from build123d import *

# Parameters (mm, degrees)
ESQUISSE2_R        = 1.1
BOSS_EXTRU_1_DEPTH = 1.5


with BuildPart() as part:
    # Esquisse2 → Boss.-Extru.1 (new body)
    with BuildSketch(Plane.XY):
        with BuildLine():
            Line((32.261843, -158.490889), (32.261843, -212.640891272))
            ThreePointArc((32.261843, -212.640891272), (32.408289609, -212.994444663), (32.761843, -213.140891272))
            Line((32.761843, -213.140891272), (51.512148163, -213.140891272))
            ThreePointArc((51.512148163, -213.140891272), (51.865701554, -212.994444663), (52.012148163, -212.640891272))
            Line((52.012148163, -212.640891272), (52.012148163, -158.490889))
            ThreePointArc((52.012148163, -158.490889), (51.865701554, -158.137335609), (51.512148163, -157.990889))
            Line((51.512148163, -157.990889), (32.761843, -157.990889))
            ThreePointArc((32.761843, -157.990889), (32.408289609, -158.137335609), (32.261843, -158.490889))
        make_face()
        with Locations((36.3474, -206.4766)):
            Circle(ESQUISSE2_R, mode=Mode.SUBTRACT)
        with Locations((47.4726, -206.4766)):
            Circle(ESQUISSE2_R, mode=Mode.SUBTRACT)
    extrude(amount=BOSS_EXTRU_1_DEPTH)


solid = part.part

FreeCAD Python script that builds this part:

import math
import FreeCAD as App
import Part
import Sketcher
from FreeCAD import Vector
Q = App.Units.Quantity

doc = App.newDocument("Part")
body = doc.addObject("PartDesign::Body", "Body")

# Sketch on XY plane
sketch1 = body.newObject("Sketcher::SketchObject", "Sketch")
sketch1.AttachmentSupport = (doc.getObject("XY_Plane"), [""])
sketch1.MapMode = "FlatFace"
sketch1.addGeometry([
    Part.LineSegment(Vector(32.26, -158.49, 0), Vector(32.26, -212.64, 0)),  # 0
    Part.ArcOfCircle(Part.Circle(Vector(32.76, -212.64, 0), Vector(0, 0, 1), 0.5), math.radians(180), math.radians(270)),  # 1
    Part.LineSegment(Vector(32.76, -213.14, 0), Vector(51.51, -213.14, 0)),  # 2
    Part.ArcOfCircle(Part.Circle(Vector(51.51, -212.64, 0), Vector(0, 0, 1), 0.5), math.radians(-90), math.radians(0)),  # 3
    Part.LineSegment(Vector(52.01, -212.64, 0), Vector(52.01, -158.49, 0)),  # 4
    Part.ArcOfCircle(Part.Circle(Vector(51.51, -158.49, 0), Vector(0, 0, 1), 0.5), math.radians(0), math.radians(90)),  # 5
    Part.LineSegment(Vector(51.51, -157.99, 0), Vector(32.76, -157.99, 0)),  # 6
    Part.ArcOfCircle(Part.Circle(Vector(32.76, -158.49, 0), Vector(0, 0, 1), 0.5), math.radians(90), math.radians(180)),  # 7
    Part.Circle(Vector(36.35, -206.48, 0), Vector(0, 0, 1), 1.1),  # 8
    Part.Circle(Vector(47.47, -206.48, 0), Vector(0, 0, 1), 1.1),  # 9
], False)
sketch1.addConstraint([
    Sketcher.Constraint("Tangent", 0, 2, 1, 1),
    Sketcher.Constraint("Tangent", 1, 2, 2, 1),
    Sketcher.Constraint("Tangent", 2, 2, 3, 1),
    Sketcher.Constraint("Tangent", 3, 2, 4, 1),
    Sketcher.Constraint("Tangent", 4, 2, 5, 1),
    Sketcher.Constraint("Tangent", 5, 2, 6, 1),
    Sketcher.Constraint("Tangent", 6, 2, 7, 1),
    Sketcher.Constraint("Tangent", 7, 2, 0, 1),
    Sketcher.Constraint("Vertical", 0),
    Sketcher.Constraint("Horizontal", 2),
    Sketcher.Constraint("Vertical", 4),
    Sketcher.Constraint("Horizontal", 6),
    Sketcher.Constraint("Equal", 1, 3),
    Sketcher.Constraint("Equal", 3, 5),
    Sketcher.Constraint("Equal", 5, 7),
    Sketcher.Constraint("Equal", 8, 9),
    Sketcher.Constraint("Horizontal", 8, 3, 9, 3),
    Sketcher.Constraint("Diameter", 8, Q("2.2 mm")),
    Sketcher.Constraint("Radius", 1, Q("0.5 mm")),
    Sketcher.Constraint("DistanceX", -1, 1, 8, 3, Q("36.3474 mm")),
    Sketcher.Constraint("DistanceY", 8, 3, -1, 1, Q("206.4766 mm")),
    Sketcher.Constraint("DistanceX", -1, 1, 9, 3, Q("47.4726 mm")),
    Sketcher.Constraint("DistanceX", 2, 1, 2, 2, Q("18.750305 mm")),
    Sketcher.Constraint("DistanceY", 0, 2, 0, 1, Q("54.150002 mm")),
    Sketcher.Constraint("DistanceY", 1, 3, -1, 1, Q("212.640891 mm")),
    Sketcher.Constraint("DistanceX", -1, 1, 3, 3, Q("51.512148 mm")),
])
pad1 = body.newObject("PartDesign::Pad", "Pad")
pad1.Profile = sketch1
pad1.Length = 1.5

doc.recompute()
